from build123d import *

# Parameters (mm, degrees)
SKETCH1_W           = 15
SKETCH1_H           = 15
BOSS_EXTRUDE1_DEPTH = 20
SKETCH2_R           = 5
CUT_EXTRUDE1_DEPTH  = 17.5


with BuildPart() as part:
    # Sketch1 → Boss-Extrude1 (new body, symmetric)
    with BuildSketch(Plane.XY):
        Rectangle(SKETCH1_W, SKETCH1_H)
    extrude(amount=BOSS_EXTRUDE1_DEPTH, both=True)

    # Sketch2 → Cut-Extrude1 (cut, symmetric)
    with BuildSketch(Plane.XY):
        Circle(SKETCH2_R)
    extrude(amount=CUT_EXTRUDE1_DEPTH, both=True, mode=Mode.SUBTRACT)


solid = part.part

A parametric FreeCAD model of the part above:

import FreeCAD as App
import Part
import Sketcher

V = App.Vector

doc = App.newDocument("Part")
body = doc.addObject("PartDesign::Body", "Body")

# Sketch on XY plane
sketch1 = body.newObject("Sketcher::SketchObject", "Sketch")
sketch1.AttachmentSupport = (doc.getObject("XY_Plane"), [""])
sketch1.MapMode = "FlatFace"
sketch1.addGeometry(Part.LineSegment(V(-8, 8, 0), V(-8, -8, 0)), False)
sketch1.addGeometry(Part.LineSegment(V(-8, -8, 0), V(8, -8, 0)), False)
sketch1.addGeometry(Part.LineSegment(V(8, -8, 0), V(8, 8, 0)), False)
sketch1.addGeometry(Part.LineSegment(V(8, 8, 0), V(-8, 8, 0)), False)
sketch1.addConstraint(Sketcher.Constraint("Coincident", 0, 2, 1, 1))
sketch1.addConstraint(Sketcher.Constraint("Coincident", 1, 2, 2, 1))
sketch1.addConstraint(Sketcher.Constraint("Coincident", 2, 2, 3, 1))
sketch1.addConstraint(Sketcher.Constraint("Coincident", 3, 2, 0, 1))
sketch1.addConstraint(Sketcher.Constraint("Vertical", 0))
sketch1.addConstraint(Sketcher.Constraint("Horizontal", 1))
sketch1.addConstraint(Sketcher.Constraint("Vertical", 2))
sketch1.addConstraint(Sketcher.Constraint("Horizontal", 3))
sketch1.addConstraint(Sketcher.Constraint("Symmetric", 0, 2, 2, 2, -1, 1))
sketch1.addConstraint(Sketcher.Constraint("Equal", 3, 0))
sketch1.addConstraint(Sketcher.Constraint("DistanceX", 1, 1, 1, 2, 15.0))
pad1 = body.newObject("PartDesign::Pad", "Pad")
pad1.Profile = sketch1
pad1.Length = 40
pad1.Midplane = True

# Sketch on XY plane
sketch2 = body.newObject("Sketcher::SketchObject", "Sketch001")
sketch2.AttachmentSupport = (doc.getObject("XY_Plane"), [""])
sketch2.MapMode = "FlatFace"
sketch2.addGeometry(Part.Circle(V(0, 0, 0), V(0, 0, 1), 5), False)
sketch2.addConstraint(Sketcher.Constraint("Coincident", 0, 3, -1, 1))
sketch2.addConstraint(Sketcher.Constraint("Diameter", 0, 10.0))
pocket1 = body.newObject("PartDesign::Pocket", "Pocket")
pocket1.Profile = sketch2
pocket1.Length = 35
pocket1.Midplane = True

doc.recompute()
